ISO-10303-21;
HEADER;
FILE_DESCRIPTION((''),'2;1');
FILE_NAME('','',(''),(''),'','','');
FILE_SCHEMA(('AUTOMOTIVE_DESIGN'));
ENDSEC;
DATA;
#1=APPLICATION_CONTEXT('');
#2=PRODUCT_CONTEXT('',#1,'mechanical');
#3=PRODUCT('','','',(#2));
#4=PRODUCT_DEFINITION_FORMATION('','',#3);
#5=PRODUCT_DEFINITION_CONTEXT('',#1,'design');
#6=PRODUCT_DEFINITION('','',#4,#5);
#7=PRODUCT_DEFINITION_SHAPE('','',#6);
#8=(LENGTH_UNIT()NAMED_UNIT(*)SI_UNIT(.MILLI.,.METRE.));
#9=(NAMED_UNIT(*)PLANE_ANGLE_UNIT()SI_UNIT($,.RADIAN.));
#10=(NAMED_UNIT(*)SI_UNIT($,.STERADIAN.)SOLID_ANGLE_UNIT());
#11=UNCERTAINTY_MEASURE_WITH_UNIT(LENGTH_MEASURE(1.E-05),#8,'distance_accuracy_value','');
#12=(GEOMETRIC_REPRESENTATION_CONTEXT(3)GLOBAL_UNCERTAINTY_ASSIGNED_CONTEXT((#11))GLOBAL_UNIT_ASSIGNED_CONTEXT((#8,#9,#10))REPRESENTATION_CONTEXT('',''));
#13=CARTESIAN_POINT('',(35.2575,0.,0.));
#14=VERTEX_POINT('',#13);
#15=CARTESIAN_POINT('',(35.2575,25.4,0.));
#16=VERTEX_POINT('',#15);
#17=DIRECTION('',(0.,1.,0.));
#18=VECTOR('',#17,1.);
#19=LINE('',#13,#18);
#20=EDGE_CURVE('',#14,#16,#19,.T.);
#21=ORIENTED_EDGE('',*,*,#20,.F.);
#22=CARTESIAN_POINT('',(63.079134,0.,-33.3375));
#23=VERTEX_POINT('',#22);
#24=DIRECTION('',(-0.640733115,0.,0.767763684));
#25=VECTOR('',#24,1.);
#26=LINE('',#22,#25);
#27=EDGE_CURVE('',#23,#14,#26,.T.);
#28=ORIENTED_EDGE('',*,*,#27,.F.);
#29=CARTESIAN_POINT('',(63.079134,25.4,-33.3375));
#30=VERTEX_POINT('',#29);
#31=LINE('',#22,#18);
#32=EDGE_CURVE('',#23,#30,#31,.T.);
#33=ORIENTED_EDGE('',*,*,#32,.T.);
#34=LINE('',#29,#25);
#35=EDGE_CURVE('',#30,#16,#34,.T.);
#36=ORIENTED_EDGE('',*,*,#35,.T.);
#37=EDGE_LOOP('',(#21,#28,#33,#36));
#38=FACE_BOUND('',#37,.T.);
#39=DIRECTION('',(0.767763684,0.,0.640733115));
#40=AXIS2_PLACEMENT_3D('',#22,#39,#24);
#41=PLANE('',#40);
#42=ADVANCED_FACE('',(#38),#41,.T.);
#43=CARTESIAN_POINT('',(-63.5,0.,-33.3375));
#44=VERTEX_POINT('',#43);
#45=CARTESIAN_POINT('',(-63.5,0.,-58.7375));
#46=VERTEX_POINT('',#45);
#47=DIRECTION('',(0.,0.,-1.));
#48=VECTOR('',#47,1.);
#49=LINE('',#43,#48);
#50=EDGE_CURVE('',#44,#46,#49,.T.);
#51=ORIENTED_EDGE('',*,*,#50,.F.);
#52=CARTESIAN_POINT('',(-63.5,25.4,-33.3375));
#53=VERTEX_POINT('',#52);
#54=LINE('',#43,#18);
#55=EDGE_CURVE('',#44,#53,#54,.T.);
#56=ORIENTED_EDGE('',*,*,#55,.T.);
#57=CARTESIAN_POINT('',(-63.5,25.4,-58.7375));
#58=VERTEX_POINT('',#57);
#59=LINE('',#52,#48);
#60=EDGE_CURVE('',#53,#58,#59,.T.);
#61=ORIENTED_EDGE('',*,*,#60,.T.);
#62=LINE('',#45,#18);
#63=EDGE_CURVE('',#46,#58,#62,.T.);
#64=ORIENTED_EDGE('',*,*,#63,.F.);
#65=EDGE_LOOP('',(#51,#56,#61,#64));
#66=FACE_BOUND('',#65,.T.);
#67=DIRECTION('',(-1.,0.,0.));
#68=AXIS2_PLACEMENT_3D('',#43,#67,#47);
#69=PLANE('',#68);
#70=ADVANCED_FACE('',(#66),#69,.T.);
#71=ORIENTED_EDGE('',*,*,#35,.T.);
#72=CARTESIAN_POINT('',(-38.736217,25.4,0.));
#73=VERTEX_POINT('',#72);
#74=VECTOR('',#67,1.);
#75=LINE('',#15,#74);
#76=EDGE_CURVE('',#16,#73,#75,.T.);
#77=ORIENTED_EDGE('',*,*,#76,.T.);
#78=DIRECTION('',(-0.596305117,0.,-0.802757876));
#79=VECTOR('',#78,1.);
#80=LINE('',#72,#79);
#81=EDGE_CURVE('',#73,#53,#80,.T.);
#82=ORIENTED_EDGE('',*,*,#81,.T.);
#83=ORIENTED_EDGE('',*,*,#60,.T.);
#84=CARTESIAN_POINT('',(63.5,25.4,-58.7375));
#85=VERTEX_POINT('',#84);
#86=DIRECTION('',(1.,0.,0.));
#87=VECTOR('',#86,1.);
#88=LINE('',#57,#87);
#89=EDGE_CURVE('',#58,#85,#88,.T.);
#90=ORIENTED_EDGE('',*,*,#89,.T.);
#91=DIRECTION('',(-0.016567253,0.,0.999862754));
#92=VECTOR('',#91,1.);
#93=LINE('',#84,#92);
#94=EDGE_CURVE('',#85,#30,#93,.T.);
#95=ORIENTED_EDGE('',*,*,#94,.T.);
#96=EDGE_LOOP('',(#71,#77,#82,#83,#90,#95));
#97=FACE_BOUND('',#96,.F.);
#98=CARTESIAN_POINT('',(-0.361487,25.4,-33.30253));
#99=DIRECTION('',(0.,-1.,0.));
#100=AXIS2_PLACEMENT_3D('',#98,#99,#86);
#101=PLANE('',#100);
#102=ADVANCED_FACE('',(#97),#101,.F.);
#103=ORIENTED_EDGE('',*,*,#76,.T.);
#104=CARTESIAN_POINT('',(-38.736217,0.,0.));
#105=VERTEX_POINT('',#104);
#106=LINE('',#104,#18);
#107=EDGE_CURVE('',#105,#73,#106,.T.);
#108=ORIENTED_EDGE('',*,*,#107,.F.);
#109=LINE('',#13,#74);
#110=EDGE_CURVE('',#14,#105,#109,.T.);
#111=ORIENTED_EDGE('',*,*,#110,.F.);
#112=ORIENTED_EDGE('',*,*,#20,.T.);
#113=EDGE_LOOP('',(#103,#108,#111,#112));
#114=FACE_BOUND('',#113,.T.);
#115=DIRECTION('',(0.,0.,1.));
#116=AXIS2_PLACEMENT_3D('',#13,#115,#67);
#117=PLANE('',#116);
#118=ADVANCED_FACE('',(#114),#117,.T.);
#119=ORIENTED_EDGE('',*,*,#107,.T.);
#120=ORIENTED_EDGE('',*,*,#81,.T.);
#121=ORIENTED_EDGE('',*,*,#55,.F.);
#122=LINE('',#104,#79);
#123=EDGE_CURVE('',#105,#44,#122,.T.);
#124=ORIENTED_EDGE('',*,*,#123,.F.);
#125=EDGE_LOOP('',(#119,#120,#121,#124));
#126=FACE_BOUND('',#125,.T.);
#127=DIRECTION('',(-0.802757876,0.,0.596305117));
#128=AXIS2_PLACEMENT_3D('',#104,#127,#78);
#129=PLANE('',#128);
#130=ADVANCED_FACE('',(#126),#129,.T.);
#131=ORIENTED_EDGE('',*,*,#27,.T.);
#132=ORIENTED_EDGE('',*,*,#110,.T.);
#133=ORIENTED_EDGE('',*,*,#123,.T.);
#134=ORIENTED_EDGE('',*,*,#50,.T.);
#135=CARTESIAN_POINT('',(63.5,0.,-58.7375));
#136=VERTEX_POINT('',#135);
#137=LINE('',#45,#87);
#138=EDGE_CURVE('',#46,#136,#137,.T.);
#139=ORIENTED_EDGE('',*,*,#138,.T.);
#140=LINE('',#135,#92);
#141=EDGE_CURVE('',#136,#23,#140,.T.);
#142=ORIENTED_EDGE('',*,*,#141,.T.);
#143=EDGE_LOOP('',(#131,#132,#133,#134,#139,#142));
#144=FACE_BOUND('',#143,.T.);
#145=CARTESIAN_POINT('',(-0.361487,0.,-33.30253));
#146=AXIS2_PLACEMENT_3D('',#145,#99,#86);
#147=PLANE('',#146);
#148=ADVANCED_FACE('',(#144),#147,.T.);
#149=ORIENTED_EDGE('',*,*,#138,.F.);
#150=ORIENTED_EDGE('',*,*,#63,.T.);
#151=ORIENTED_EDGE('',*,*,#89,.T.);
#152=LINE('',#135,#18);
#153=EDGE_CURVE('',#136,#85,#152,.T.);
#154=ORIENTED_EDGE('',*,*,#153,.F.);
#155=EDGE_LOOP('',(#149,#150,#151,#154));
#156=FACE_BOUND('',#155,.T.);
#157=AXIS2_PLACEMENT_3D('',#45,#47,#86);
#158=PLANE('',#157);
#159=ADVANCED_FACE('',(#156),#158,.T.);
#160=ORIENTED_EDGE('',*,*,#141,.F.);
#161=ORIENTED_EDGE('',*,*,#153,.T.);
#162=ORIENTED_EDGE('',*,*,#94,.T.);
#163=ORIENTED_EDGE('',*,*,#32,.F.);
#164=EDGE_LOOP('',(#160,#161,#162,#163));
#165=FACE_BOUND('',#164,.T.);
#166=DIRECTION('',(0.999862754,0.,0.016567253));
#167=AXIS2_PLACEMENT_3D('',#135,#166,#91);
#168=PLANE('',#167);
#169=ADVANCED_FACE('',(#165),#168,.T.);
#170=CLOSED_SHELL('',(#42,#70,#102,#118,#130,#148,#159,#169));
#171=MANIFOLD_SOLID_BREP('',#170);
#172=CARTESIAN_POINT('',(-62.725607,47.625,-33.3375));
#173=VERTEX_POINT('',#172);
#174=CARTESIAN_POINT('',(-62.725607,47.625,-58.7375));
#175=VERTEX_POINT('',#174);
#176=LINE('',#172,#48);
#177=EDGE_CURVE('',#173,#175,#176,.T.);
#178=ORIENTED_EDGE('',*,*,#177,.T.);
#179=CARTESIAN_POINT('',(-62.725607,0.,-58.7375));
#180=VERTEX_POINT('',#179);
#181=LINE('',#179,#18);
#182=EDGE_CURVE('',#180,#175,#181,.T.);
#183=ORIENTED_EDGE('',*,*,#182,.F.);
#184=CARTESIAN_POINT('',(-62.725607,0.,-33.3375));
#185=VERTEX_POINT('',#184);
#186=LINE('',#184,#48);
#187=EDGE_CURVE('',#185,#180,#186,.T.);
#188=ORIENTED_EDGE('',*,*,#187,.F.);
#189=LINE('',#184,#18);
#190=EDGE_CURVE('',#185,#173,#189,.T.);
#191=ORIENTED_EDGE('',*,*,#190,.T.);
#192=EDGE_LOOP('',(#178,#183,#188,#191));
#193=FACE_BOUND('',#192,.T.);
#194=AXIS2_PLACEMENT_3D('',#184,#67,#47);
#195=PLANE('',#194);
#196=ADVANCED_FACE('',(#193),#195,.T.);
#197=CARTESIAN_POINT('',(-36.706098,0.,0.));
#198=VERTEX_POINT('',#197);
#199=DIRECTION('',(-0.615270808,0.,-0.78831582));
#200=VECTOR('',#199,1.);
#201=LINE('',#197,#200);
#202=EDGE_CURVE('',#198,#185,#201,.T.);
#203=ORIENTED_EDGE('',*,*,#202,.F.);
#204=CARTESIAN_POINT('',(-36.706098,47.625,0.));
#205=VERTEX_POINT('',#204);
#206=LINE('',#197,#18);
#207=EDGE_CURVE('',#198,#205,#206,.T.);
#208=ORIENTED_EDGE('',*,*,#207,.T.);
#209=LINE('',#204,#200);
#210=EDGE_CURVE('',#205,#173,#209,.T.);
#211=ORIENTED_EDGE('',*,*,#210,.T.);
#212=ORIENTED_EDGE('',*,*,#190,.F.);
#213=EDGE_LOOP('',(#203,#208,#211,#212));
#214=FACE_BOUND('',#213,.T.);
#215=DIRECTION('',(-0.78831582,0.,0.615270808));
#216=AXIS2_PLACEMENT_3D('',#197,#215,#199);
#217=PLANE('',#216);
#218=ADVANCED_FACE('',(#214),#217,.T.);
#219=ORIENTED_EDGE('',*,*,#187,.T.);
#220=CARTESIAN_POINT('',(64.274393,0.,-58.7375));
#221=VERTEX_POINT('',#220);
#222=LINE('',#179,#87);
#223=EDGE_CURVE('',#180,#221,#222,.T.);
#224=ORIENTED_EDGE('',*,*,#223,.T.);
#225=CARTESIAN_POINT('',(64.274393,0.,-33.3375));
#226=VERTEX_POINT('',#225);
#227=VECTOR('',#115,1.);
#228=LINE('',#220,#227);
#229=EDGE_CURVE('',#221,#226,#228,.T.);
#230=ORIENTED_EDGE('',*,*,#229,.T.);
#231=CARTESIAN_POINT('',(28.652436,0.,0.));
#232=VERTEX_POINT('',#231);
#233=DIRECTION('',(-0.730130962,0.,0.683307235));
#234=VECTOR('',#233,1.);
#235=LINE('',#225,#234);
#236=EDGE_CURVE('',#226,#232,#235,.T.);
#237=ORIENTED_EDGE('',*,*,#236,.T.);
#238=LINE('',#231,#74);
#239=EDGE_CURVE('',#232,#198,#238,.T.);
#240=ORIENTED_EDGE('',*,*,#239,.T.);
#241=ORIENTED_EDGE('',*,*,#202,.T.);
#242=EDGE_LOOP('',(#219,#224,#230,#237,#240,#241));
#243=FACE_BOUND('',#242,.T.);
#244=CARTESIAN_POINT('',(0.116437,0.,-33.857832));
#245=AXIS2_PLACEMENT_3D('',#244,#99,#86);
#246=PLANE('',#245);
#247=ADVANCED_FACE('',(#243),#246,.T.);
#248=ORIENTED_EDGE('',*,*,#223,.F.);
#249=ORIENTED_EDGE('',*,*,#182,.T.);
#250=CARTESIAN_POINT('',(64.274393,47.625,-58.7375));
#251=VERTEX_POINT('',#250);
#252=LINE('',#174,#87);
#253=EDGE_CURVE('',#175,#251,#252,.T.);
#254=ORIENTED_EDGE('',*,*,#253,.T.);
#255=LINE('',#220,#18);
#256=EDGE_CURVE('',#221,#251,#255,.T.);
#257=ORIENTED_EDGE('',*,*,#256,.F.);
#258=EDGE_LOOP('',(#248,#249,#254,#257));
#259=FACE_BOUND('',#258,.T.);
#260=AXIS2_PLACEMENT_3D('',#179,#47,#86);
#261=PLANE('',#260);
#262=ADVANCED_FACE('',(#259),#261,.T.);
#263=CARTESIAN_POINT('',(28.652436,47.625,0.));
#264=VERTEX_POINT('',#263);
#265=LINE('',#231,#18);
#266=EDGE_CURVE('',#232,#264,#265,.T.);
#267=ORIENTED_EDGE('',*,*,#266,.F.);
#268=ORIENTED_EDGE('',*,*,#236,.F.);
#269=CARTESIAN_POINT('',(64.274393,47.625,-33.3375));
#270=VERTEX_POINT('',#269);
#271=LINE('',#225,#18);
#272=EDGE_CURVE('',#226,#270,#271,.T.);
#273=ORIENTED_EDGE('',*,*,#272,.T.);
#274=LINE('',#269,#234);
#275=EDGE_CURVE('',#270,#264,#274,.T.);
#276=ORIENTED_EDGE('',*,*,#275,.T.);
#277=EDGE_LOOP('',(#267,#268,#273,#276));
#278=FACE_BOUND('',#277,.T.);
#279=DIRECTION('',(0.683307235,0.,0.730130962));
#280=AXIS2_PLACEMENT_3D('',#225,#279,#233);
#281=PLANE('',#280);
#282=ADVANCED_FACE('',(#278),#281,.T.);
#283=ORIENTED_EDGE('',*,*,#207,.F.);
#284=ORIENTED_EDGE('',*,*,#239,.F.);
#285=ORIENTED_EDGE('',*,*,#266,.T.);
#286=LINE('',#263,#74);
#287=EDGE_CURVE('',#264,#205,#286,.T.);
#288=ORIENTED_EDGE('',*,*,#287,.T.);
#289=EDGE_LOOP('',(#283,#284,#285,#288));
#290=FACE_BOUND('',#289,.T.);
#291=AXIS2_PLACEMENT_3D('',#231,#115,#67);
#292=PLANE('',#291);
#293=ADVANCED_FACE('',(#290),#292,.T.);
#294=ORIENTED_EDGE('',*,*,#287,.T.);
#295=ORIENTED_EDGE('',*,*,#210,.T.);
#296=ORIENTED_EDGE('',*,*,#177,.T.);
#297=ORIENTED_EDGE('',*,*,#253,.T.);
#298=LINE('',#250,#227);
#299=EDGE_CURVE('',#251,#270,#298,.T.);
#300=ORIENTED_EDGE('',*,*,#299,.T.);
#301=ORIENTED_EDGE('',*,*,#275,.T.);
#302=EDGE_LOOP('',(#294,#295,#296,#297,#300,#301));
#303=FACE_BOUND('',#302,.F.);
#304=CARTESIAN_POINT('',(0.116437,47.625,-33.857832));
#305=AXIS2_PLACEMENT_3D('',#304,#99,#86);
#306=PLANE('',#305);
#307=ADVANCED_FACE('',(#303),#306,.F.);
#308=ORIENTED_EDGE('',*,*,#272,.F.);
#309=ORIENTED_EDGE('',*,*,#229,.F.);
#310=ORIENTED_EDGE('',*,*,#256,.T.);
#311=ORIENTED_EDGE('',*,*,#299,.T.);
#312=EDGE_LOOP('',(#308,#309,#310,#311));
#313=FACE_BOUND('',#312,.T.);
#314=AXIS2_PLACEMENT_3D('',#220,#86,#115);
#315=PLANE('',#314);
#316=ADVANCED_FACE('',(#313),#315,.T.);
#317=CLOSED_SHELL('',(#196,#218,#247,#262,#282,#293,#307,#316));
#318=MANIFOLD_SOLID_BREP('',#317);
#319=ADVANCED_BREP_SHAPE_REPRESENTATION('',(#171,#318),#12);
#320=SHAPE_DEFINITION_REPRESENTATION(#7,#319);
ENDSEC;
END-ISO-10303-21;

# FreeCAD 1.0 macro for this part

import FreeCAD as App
import Part
import Sketcher
from FreeCAD import Vector
Q = App.Units.Quantity


def add_polygon(sketch, points):
    """Adds a closed chain of lines whose ends are joined by coincident constraints."""
    first, n = sketch.GeometryCount, len(points)
    for a, b in zip(points, points[1:] + points[:1]):
        sketch.addGeometry(Part.LineSegment(App.Vector(*a, 0), App.Vector(*b, 0)), False)
    for i in range(n):
        sketch.addConstraint(Sketcher.Constraint("Coincident", first + i, 2, first + (i + 1) % n, 1))

doc = App.newDocument("Part")
body = doc.addObject("PartDesign::Body", "Body")

sketch1 = body.newObject("Sketcher::SketchObject", "Sketch")
sketch1.AttachmentSupport = (doc.getObject("XZ_Plane"), [""])
sketch1.MapMode = "FlatFace"
add_polygon(sketch1, [(-64, -59), (64, -59), (63, -33), (35, 0), (-39, 0), (-64, -33)])
sketch1.addConstraint([
    Sketcher.Constraint("Horizontal", 0),
    Sketcher.Constraint("Horizontal", 3),
    Sketcher.Constraint("Vertical", 5),
    Sketcher.Constraint("PointOnObject", 2, 2, -1),
    Sketcher.Constraint("Horizontal", 1, 2, 4, 2),
    Sketcher.Constraint("DistanceX", 0, 1, 0, 2, Q("5 in")),
    Sketcher.Constraint("DistanceY", 5, 2, 5, 1, Q("1 in")),
    Sketcher.Constraint("DistanceX", -1, 1, 0, 2, Q("2.5 in")),
    Sketcher.Constraint("DistanceY", 0, 2, -1, 1, Q("2.3125 in")),
    Sketcher.Constraint("DistanceX", -1, 1, 2, 2, Q("35.2575 mm")),
    Sketcher.Constraint("Distance", 4, Q("41.528711 mm")),
    Sketcher.Constraint("DistanceX", 3, 2, 1, 2, Q("101.815351 mm")),
])
pad1 = body.newObject("PartDesign::Pad", "Pad")
pad1.Profile = sketch1
pad1.Length = Q("1 in")
pad1.Reversed = True
body2 = doc.addObject("PartDesign::Body", "Body001")

sketch2 = body2.newObject("Sketcher::SketchObject", "Sketch001")
sketch2.AttachmentSupport = (doc.getObject("XZ_Plane001"), [""])
sketch2.MapMode = "FlatFace"
add_polygon(sketch2, [(-63, -33), (-63, -59), (64, -59), (64, -33), (29, 0), (-37, 0)])
sketch2.addConstraint([
    Sketcher.Constraint("Vertical", 0),
    Sketcher.Constraint("Horizontal", 1),
    Sketcher.Constraint("Vertical", 2),
    Sketcher.Constraint("Horizontal", 4),
    Sketcher.Constraint("PointOnObject", 3, 2, -1),
    Sketcher.Constraint("Horizontal", 2, 2, 5, 2),
    Sketcher.Constraint("DistanceX", 1, 1, 1, 2, Q("5 in")),
    Sketcher.Constraint("DistanceY", 0, 2, 0, 1, Q("1 in")),
    Sketcher.Constraint("DistanceY", 0, 2, -1, 1, Q("2.3125 in")),
    Sketcher.Constraint("Distance", 3, Q("48.788449 mm")),
    Sketcher.Constraint("DistanceX", 4, 2, 4, 1, Q("65.358534 mm")),
    Sketcher.Constraint("DistanceX", 0, 2, -1, 1, Q("62.725607 mm")),
])
pad2 = body2.newObject("PartDesign::Pad", "Pad001")
pad2.Profile = sketch2
pad2.Length = Q("1.875 in")
pad2.Reversed = True

doc.recompute()
